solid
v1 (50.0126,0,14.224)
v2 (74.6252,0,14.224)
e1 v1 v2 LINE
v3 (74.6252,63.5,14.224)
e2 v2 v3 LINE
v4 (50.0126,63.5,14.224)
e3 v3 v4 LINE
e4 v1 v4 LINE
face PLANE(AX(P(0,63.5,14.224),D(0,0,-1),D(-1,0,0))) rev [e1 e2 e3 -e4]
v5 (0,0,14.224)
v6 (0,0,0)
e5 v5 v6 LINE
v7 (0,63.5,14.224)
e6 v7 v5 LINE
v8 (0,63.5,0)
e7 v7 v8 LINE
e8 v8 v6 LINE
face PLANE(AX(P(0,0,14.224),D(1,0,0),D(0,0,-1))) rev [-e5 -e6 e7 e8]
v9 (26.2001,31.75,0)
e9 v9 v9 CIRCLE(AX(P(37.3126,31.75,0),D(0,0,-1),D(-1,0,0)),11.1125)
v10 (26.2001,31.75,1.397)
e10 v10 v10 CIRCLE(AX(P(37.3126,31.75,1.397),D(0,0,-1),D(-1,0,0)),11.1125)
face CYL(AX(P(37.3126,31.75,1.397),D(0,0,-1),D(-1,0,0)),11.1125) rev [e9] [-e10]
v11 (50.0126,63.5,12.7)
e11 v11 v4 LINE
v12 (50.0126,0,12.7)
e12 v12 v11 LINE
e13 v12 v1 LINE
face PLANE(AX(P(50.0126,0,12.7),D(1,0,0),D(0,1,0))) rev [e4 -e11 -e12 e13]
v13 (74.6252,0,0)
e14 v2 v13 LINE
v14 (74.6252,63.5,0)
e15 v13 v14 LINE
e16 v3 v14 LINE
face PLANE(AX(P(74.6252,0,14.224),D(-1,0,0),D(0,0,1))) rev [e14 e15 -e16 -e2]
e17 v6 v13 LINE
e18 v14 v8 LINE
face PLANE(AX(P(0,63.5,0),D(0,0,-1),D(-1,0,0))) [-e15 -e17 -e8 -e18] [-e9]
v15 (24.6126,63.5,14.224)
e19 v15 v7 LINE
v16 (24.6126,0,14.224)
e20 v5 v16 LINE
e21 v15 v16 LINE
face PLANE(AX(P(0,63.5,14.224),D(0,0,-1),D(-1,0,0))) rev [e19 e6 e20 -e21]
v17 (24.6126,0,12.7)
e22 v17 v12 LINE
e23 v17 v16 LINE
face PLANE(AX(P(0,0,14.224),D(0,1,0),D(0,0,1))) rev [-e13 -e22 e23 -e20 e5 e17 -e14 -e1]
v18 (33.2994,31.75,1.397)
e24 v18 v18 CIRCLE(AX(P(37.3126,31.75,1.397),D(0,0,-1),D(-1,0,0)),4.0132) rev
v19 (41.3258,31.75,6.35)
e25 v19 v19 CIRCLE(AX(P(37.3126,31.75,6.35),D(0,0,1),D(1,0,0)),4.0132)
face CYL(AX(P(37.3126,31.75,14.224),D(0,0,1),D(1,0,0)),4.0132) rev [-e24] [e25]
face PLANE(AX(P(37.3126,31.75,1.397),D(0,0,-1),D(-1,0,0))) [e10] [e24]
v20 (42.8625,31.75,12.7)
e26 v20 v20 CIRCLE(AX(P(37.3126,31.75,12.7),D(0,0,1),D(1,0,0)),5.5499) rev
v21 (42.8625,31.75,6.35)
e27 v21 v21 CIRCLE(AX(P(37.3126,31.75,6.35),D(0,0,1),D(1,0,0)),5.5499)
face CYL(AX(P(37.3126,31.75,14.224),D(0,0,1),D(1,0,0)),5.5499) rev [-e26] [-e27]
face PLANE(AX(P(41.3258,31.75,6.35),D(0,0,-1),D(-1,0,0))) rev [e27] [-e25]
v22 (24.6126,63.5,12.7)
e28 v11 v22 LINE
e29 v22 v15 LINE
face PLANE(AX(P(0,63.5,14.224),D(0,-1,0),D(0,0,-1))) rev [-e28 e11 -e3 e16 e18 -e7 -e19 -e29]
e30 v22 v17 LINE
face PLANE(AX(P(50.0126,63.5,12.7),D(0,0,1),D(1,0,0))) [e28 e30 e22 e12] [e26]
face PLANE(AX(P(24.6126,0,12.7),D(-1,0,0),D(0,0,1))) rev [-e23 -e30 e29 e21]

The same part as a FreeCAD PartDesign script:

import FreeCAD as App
import Part
import Sketcher
from FreeCAD import Vector
Q = App.Units.Quantity


def add_polygon(sketch, points):
    """Adds a closed chain of lines whose ends are joined by coincident constraints."""
    first, n = sketch.GeometryCount, len(points)
    for a, b in zip(points, points[1:] + points[:1]):
        sketch.addGeometry(Part.LineSegment(App.Vector(*a, 0), App.Vector(*b, 0)), False)
    for i in range(n):
        sketch.addConstraint(Sketcher.Constraint("Coincident", first + i, 2, first + (i + 1) % n, 1))

doc = App.newDocument("Part")
params = doc.addObject("Spreadsheet::Sheet", "Params")
for row, (alias, value) in enumerate([
    ("sketch1_height", "2.5 in"),
    ("sketch1_width", "2.938 in"),
    ("pad1_length", "0.56 in"),
    ("sketch2_diameter", "0.316 in"),
    ("hole_diameter", "0.316 in"),
    ("hole_cbore_diameter", "0.437 in"),
    ("hole_cbore_depth", "0.31 in"),
    ("sketch3_width", "1 in"),
    ("sketch3_height", "2.5 in"),
    ("pocket1_length", "0.06 in"),
    ("sketch4_diameter", "0.875 in"),
    ("pocket2_length", "0.055 in"),
], start=1):
    params.set(f"A{row}", alias)
    params.set(f"B{row}", "=" + value)
    params.setAlias(f"B{row}", alias)

body = doc.addObject("PartDesign::Body", "Body")

# Sketch on XY plane
sketch1 = doc.addObject("Sketcher::SketchObject", "Sketch")
body.addObject(sketch1)
sketch1.AttachmentSupport = (doc.XY_Plane, [""])
sketch1.MapMode = "FlatFace"
add_polygon(sketch1, [(0, 63.5), (0, 0), (74.6252, 0), (74.6252, 63.5)])  # lines 0-3
sketch1.addConstraint([
    Sketcher.Constraint("Vertical", 0),
    Sketcher.Constraint("Horizontal", 1),
    Sketcher.Constraint("Vertical", 2),
    Sketcher.Constraint("Horizontal", 3),
    Sketcher.Constraint("Coincident", 0, 2, -1, 1),
    Sketcher.Constraint("DistanceY", 0, 2, 0, 1, Q("2.5 in")),
    Sketcher.Constraint("DistanceX", 1, 1, 1, 2, Q("2.938 in")),
])
sketch1.setExpression("Constraints[9]", "Params.sketch1_height")
sketch1.setExpression("Constraints[10]", "Params.sketch1_width")
pad1 = doc.addObject("PartDesign::Pad", "Pad")
body.addObject(pad1)
pad1.Profile = sketch1
pad1.setExpression("Length", "Params.pad1_length")

# Sketch on XY plane
sketch2 = doc.addObject("Sketcher::SketchObject", "Sketch001")
body.addObject(sketch2)
sketch2.AttachmentSupport = (doc.XY_Plane, [""])
sketch2.MapMode = "FlatFace"
sketch2.AttachmentOffset = App.Placement(Vector(0, 0, 0.56 * 25.4), App.Rotation())
sketch2.addGeometry(Part.Circle(Vector(37.3126, 31.75, 0), Vector(0, 0, 1), 4.0132), False)
sketch2.addConstraint([
    Sketcher.Constraint("Diameter", 0, Q("0.316 in")),
    Sketcher.Constraint("DistanceY", -1, 1, 0, 3, Q("1.25 in")),
    Sketcher.Constraint("DistanceX", -1, 1, 0, 3, Q("1.469 in")),
])
sketch2.setExpression("Constraints[0]", "Params.sketch2_diameter")
doc.recompute()
hole = doc.addObject("PartDesign::Hole", "Hole")
body.addObject(hole)
hole.Profile = sketch2
hole.ThreadType = "None"
hole.setExpression("Diameter", "Params.hole_diameter")
hole.DepthType = "ThroughAll"
hole.HoleCutType = "Counterbore"
hole.setExpression("HoleCutDiameter", "Params.hole_cbore_diameter")
hole.setExpression("HoleCutDepth", "Params.hole_cbore_depth")

# Sketch on XY plane
sketch3 = doc.addObject("Sketcher::SketchObject", "Sketch002")
body.addObject(sketch3)
sketch3.AttachmentSupport = (doc.XY_Plane, [""])
sketch3.MapMode = "FlatFace"
sketch3.AttachmentOffset = App.Placement(Vector(0, 0, 0.56 * 25.4), App.Rotation())
add_polygon(sketch3, [(24.6126, 63.5), (24.6126, 0), (50.0126, 0), (50.0126, 63.5)])  # lines 0-3
sketch3.addConstraint([
    Sketcher.Constraint("Vertical", 0),
    Sketcher.Constraint("Horizontal", 1),
    Sketcher.Constraint("Vertical", 2),
    Sketcher.Constraint("Horizontal", 3),
    Sketcher.Constraint("PointOnObject", 0, 2, -1),
    Sketcher.Constraint("DistanceX", 1, 1, 1, 2, Q("1 in")),
    Sketcher.Constraint("DistanceY", 0, 2, 0, 1, Q("2.5 in")),
    Sketcher.Constraint("DistanceX", -1, 1, 0, 2, Q("0.969 in")),
])
sketch3.setExpression("Constraints[9]", "Params.sketch3_width")
sketch3.setExpression("Constraints[10]", "Params.sketch3_height")
pocket1 = doc.addObject("PartDesign::Pocket", "Pocket")
body.addObject(pocket1)
pocket1.Profile = sketch3
pocket1.setExpression("Length", "Params.pocket1_length")

# Sketch on XY plane
sketch4 = doc.addObject("Sketcher::SketchObject", "Sketch003")
body.addObject(sketch4)
sketch4.AttachmentSupport = (doc.XY_Plane, [""])
sketch4.MapMode = "FlatFace"
sketch4.addGeometry(Part.Circle(Vector(37.3126, 31.75, 0), Vector(0, 0, 1), 11.1125), False)
sketch4.addConstraint([
    Sketcher.Constraint("Diameter", 0, Q("0.875 in")),
    Sketcher.Constraint("DistanceY", -1, 1, 0, 3, Q("1.25 in")),
    Sketcher.Constraint("DistanceX", -1, 1, 0, 3, Q("1.469 in")),
])
sketch4.setExpression("Constraints[0]", "Params.sketch4_diameter")
pocket2 = doc.addObject("PartDesign::Pocket", "Pocket001")
body.addObject(pocket2)
pocket2.Profile = sketch4
pocket2.setExpression("Length", "Params.pocket2_length")
pocket2.Reversed = True

doc.recompute()
